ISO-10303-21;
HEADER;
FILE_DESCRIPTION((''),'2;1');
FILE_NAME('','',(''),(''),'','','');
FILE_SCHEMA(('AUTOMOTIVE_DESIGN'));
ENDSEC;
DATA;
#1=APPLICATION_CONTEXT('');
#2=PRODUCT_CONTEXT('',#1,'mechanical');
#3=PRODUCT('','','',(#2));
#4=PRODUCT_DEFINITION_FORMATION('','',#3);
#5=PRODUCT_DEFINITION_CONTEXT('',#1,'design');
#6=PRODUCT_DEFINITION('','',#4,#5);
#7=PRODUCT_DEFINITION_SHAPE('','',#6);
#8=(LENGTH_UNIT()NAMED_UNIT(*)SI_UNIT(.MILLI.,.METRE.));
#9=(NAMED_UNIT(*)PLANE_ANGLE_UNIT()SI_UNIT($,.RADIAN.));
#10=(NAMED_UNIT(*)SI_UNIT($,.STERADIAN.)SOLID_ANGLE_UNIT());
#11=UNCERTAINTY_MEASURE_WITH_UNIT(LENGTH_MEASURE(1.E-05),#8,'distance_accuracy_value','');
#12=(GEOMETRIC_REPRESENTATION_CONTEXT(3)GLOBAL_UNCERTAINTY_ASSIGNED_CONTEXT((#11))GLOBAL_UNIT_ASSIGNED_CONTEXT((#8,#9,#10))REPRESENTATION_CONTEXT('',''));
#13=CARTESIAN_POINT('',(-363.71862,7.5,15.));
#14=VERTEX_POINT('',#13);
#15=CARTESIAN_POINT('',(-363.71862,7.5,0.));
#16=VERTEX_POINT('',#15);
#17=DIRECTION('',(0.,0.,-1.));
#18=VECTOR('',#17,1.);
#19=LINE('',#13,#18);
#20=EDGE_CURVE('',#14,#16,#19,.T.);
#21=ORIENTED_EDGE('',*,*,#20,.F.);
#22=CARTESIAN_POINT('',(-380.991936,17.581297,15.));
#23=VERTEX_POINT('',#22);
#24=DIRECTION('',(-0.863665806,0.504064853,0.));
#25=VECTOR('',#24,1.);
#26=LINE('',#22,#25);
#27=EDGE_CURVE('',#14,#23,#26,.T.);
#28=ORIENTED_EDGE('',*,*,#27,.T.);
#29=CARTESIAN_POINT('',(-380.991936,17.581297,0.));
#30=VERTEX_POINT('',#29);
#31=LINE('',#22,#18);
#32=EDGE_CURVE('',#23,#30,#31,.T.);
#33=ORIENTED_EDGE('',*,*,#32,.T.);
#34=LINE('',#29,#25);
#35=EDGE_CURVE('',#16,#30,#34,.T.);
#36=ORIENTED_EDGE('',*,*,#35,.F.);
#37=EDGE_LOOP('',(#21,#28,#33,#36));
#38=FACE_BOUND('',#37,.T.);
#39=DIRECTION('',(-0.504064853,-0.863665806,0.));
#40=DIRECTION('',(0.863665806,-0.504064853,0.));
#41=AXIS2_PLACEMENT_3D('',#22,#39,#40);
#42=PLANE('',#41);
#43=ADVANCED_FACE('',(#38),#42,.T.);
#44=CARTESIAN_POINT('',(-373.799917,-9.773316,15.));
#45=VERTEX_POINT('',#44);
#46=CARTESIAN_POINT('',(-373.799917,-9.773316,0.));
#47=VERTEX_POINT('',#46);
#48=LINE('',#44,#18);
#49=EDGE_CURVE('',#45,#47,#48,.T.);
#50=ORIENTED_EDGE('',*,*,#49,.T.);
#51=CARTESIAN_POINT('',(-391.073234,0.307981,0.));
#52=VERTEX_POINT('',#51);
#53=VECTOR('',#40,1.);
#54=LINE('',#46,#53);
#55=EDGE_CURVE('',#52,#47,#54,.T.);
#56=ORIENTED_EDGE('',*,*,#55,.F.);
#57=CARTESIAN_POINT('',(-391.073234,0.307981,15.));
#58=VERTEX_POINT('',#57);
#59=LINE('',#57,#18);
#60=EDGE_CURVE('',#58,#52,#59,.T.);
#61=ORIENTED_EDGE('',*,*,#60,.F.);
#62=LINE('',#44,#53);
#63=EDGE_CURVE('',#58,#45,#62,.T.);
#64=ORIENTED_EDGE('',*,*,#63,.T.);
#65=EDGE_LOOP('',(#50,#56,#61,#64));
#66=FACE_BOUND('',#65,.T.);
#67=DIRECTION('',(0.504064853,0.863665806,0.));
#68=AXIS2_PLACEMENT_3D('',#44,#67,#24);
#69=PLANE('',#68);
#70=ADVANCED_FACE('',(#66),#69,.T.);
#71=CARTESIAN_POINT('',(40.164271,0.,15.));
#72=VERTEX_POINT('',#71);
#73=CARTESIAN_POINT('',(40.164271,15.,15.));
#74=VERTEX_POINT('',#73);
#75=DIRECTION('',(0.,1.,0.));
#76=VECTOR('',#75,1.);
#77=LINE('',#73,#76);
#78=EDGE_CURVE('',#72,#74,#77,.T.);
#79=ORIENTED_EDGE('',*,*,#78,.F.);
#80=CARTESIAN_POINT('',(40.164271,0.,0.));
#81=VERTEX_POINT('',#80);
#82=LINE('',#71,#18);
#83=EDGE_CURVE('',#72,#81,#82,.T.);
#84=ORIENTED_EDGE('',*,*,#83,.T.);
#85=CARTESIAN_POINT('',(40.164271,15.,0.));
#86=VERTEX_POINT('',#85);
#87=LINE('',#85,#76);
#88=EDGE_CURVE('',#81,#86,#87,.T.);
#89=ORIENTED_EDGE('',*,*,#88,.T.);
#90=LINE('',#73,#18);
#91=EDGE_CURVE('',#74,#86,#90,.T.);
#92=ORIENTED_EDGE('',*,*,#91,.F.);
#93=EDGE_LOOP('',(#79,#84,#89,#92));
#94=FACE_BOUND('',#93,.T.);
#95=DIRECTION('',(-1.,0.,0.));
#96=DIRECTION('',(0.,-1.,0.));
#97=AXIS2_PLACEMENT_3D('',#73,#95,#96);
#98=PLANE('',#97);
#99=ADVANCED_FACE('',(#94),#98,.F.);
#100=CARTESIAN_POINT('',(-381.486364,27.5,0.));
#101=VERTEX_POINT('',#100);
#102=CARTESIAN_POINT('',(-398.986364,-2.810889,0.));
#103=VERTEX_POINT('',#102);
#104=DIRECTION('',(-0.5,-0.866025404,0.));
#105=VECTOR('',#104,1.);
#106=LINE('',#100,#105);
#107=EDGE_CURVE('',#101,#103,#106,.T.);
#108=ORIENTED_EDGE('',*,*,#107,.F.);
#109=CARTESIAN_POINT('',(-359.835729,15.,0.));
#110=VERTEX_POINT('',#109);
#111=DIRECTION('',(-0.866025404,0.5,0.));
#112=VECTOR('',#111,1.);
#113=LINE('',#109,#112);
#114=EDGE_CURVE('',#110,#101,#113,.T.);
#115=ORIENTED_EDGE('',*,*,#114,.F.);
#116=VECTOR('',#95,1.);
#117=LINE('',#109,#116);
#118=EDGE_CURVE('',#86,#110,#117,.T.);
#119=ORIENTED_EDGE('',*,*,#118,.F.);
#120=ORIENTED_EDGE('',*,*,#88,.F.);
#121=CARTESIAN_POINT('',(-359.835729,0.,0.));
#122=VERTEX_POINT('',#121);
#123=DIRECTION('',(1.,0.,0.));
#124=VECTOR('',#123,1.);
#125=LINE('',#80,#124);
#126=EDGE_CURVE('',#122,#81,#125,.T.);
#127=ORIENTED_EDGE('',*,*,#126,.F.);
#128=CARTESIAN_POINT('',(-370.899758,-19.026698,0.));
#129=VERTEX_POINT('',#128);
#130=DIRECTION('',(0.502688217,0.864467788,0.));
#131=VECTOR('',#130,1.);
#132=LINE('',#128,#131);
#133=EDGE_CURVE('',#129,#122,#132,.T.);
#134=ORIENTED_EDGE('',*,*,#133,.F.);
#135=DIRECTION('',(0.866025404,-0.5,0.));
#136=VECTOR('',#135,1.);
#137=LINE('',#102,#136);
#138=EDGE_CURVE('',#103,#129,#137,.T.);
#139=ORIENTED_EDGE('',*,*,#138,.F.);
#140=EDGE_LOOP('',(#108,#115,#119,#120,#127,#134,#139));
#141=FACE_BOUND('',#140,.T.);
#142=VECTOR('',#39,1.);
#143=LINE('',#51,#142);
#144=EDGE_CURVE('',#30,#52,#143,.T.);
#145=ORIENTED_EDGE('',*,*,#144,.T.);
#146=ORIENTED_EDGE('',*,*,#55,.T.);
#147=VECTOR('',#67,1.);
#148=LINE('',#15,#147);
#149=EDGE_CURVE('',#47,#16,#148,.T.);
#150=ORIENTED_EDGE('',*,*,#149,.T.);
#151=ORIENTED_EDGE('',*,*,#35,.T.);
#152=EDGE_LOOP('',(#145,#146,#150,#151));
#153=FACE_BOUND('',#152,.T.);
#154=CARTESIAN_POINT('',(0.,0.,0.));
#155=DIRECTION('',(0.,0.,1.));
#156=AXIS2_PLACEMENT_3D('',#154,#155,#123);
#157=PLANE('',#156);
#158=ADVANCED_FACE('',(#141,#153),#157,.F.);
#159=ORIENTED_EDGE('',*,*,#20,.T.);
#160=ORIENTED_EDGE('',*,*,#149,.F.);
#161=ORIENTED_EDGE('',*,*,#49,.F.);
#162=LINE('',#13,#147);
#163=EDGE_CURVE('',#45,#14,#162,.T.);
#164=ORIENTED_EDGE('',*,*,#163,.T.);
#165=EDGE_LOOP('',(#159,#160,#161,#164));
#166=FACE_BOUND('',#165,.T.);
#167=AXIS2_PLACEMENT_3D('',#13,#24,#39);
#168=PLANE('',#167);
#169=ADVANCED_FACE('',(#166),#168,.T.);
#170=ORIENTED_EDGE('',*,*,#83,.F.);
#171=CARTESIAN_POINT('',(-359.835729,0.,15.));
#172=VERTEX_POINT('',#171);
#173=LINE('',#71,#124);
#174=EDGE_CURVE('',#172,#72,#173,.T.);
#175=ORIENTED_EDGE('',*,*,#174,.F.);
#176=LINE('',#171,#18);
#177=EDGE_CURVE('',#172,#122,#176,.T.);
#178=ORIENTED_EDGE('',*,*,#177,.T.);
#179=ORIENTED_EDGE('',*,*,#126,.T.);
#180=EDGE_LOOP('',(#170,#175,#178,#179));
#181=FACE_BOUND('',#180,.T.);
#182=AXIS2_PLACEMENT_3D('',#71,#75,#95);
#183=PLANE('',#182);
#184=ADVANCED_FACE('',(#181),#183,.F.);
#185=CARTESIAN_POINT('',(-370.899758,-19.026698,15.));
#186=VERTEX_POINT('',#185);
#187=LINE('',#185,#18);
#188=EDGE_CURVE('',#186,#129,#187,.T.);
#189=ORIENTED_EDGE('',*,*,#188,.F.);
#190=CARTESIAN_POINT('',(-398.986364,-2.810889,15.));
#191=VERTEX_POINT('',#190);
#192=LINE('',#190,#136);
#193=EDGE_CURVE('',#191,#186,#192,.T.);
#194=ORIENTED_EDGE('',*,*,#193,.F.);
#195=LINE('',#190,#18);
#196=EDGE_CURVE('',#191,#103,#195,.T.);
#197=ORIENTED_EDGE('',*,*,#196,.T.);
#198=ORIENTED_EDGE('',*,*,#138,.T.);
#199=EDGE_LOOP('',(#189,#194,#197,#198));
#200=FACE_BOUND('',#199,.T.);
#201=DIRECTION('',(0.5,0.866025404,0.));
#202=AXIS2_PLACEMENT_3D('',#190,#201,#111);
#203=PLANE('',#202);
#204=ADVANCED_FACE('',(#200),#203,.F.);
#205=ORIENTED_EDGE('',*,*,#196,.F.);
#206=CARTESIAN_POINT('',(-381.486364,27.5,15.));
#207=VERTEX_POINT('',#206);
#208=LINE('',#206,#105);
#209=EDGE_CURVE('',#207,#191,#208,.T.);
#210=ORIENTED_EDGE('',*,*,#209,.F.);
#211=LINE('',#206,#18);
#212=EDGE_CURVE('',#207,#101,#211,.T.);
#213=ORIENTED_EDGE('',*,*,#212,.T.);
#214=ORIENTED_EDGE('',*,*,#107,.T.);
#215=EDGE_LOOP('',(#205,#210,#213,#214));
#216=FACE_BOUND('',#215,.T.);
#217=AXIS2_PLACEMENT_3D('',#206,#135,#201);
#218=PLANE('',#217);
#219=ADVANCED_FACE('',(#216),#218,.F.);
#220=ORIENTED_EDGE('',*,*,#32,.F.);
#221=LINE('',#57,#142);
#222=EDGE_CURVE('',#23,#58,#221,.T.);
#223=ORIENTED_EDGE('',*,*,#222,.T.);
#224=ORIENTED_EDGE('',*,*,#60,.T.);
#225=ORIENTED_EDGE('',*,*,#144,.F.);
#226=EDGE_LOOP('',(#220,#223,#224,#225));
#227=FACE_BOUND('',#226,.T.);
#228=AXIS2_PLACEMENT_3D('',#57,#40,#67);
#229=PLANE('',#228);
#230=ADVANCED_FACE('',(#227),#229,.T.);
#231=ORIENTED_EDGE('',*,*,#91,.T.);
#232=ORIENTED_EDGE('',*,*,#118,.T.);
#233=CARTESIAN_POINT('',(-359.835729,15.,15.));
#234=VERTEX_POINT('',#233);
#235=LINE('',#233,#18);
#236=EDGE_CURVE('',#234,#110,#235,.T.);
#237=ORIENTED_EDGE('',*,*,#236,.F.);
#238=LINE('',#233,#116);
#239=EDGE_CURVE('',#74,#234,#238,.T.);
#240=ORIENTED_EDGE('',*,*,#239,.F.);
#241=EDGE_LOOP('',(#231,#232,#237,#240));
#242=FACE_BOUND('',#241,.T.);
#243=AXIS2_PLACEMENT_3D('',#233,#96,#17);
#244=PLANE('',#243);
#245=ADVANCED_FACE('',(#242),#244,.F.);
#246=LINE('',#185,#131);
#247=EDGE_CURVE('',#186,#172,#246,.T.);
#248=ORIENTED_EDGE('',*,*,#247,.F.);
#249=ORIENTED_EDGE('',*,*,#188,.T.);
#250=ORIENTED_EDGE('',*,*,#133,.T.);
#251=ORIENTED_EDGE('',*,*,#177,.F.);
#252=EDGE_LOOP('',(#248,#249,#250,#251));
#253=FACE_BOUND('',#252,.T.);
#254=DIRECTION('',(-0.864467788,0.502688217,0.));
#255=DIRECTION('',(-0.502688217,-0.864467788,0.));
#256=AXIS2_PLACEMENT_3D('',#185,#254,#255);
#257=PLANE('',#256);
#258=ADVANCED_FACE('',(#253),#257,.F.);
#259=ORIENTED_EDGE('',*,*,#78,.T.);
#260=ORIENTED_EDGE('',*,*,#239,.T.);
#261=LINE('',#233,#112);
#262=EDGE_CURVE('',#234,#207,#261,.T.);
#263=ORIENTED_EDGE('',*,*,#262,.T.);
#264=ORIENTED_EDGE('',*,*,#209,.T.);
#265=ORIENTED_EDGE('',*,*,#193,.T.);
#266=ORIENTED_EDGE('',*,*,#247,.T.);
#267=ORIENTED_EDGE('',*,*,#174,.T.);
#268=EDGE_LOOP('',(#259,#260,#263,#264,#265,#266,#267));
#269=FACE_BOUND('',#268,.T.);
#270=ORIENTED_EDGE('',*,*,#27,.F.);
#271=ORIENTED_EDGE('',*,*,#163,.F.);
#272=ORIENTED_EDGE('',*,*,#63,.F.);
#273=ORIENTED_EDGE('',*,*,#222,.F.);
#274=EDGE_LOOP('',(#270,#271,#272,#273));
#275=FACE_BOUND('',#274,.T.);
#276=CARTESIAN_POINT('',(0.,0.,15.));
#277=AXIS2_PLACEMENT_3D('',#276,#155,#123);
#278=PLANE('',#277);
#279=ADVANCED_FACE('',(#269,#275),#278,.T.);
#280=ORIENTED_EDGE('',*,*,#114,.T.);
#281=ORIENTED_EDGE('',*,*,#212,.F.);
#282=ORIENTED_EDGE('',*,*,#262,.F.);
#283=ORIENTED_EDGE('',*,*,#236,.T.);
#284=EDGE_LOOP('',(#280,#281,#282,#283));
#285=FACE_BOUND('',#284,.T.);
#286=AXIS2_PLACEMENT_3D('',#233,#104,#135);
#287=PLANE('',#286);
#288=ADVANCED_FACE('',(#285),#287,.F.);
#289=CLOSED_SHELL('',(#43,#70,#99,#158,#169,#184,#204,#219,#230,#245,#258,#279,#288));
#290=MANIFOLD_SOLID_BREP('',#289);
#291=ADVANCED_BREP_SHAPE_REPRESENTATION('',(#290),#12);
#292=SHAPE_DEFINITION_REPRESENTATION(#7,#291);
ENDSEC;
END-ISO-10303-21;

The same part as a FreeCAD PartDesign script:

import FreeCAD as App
import Part
import Sketcher

V = App.Vector
Q = App.Units.Quantity


def add_polygon(sketch, points):
    """Adds a closed chain of lines whose ends are joined by coincident constraints."""
    first, n = sketch.GeometryCount, len(points)
    for a, b in zip(points, points[1:] + points[:1]):
        sketch.addGeometry(Part.LineSegment(App.Vector(*a, 0), App.Vector(*b, 0)), False)
    for i in range(n):
        sketch.addConstraint(Sketcher.Constraint("Coincident", first + i, 2, first + (i + 1) % n, 1))

doc = App.newDocument("Part")
params = doc.addObject("Spreadsheet::Sheet", "Params")
for row, (alias, value) in enumerate([
    ("sketch1_width", "400 mm"),
    ("sketch1_height", "15 mm"),
    ("sketch1_length", "25 mm"),
    ("sketch1_length2", "35 mm"),
    ("sketch1_length3", "20 mm"),
    ("pad1_length", "15 mm"),
], start=1):
    params.set(f"A{row}", alias)
    params.set(f"B{row}", "=" + value)
    params.setAlias(f"B{row}", alias)

body = doc.addObject("PartDesign::Body", "Body")

sketch1 = body.newObject("Sketcher::SketchObject", "Sketch")
sketch1.AttachmentSupport = (doc.getObject("XY_Plane"), [""])
sketch1.MapMode = "FlatFace"
add_polygon(sketch1, [(40.164271, 15), (-359.835729, 15), (-381.486364, 27.5), (-398.986364, -2.810889), (-370.899758, -19.026698), (-359.835729, 0), (40.164271, 0)])
add_polygon(sketch1, [(-373.799917, -9.773316), (-391.073234, 0.307981), (-380.991936, 17.581297), (-363.71862, 7.5)])
sketch1.addConstraint([
    Sketcher.Constraint("Horizontal", 0),
    Sketcher.Constraint("Horizontal", 5),
    Sketcher.Constraint("Vertical", 6),
    Sketcher.Constraint("PointOnObject", 4, 2, -1),
    Sketcher.Constraint("Perpendicular", 1, 2),
    Sketcher.Constraint("Perpendicular", 2, 3),
    Sketcher.Constraint("Perpendicular", 7, 8),
    Sketcher.Constraint("Perpendicular", 8, 9),
    Sketcher.Constraint("Perpendicular", 9, 10),
    Sketcher.Constraint("Vertical", 0, 2, 4, 2),
    Sketcher.Constraint("Equal", 7, 8),
    Sketcher.Constraint("DistanceX", 0, 2, 0, 1, Q("400 mm")),
    Sketcher.Constraint("DistanceY", 6, 1, 6, 2, Q("15 mm")),
    Sketcher.Constraint("Angle", 1, Q("150 deg")),
    Sketcher.Constraint("Distance", 1, Q("25 mm")),
    Sketcher.Constraint("Distance", 2, Q("35 mm")),
    Sketcher.Constraint("Distance", 7, Q("20 mm")),
    Sketcher.Constraint("DistanceY", 9, 2, 1, 2, Q("20 mm")),
    Sketcher.Constraint("DistanceY", 3, 2, -1, 1, Q("19.026698 mm")),
    Sketcher.Constraint("DistanceX", 0, 2, -1, 1, Q("359.835729 mm")),
    Sketcher.Constraint("DistanceY", -1, 1, 7, 2, Q("0.307981 mm")),
    Sketcher.Constraint("DistanceX", 9, 2, -1, 1, Q("363.71862 mm")),
])
sketch1.setExpression("Constraints[22]", "Params.sketch1_width")
sketch1.setExpression("Constraints[23]", "Params.sketch1_height")
sketch1.setExpression("Constraints[25]", "Params.sketch1_length")
sketch1.setExpression("Constraints[26]", "Params.sketch1_length2")
sketch1.setExpression("Constraints[27]", "Params.sketch1_length3")
pad1 = body.newObject("PartDesign::Pad", "Pad")
pad1.Profile = sketch1
pad1.setExpression("Length", "Params.pad1_length")

doc.recompute()
